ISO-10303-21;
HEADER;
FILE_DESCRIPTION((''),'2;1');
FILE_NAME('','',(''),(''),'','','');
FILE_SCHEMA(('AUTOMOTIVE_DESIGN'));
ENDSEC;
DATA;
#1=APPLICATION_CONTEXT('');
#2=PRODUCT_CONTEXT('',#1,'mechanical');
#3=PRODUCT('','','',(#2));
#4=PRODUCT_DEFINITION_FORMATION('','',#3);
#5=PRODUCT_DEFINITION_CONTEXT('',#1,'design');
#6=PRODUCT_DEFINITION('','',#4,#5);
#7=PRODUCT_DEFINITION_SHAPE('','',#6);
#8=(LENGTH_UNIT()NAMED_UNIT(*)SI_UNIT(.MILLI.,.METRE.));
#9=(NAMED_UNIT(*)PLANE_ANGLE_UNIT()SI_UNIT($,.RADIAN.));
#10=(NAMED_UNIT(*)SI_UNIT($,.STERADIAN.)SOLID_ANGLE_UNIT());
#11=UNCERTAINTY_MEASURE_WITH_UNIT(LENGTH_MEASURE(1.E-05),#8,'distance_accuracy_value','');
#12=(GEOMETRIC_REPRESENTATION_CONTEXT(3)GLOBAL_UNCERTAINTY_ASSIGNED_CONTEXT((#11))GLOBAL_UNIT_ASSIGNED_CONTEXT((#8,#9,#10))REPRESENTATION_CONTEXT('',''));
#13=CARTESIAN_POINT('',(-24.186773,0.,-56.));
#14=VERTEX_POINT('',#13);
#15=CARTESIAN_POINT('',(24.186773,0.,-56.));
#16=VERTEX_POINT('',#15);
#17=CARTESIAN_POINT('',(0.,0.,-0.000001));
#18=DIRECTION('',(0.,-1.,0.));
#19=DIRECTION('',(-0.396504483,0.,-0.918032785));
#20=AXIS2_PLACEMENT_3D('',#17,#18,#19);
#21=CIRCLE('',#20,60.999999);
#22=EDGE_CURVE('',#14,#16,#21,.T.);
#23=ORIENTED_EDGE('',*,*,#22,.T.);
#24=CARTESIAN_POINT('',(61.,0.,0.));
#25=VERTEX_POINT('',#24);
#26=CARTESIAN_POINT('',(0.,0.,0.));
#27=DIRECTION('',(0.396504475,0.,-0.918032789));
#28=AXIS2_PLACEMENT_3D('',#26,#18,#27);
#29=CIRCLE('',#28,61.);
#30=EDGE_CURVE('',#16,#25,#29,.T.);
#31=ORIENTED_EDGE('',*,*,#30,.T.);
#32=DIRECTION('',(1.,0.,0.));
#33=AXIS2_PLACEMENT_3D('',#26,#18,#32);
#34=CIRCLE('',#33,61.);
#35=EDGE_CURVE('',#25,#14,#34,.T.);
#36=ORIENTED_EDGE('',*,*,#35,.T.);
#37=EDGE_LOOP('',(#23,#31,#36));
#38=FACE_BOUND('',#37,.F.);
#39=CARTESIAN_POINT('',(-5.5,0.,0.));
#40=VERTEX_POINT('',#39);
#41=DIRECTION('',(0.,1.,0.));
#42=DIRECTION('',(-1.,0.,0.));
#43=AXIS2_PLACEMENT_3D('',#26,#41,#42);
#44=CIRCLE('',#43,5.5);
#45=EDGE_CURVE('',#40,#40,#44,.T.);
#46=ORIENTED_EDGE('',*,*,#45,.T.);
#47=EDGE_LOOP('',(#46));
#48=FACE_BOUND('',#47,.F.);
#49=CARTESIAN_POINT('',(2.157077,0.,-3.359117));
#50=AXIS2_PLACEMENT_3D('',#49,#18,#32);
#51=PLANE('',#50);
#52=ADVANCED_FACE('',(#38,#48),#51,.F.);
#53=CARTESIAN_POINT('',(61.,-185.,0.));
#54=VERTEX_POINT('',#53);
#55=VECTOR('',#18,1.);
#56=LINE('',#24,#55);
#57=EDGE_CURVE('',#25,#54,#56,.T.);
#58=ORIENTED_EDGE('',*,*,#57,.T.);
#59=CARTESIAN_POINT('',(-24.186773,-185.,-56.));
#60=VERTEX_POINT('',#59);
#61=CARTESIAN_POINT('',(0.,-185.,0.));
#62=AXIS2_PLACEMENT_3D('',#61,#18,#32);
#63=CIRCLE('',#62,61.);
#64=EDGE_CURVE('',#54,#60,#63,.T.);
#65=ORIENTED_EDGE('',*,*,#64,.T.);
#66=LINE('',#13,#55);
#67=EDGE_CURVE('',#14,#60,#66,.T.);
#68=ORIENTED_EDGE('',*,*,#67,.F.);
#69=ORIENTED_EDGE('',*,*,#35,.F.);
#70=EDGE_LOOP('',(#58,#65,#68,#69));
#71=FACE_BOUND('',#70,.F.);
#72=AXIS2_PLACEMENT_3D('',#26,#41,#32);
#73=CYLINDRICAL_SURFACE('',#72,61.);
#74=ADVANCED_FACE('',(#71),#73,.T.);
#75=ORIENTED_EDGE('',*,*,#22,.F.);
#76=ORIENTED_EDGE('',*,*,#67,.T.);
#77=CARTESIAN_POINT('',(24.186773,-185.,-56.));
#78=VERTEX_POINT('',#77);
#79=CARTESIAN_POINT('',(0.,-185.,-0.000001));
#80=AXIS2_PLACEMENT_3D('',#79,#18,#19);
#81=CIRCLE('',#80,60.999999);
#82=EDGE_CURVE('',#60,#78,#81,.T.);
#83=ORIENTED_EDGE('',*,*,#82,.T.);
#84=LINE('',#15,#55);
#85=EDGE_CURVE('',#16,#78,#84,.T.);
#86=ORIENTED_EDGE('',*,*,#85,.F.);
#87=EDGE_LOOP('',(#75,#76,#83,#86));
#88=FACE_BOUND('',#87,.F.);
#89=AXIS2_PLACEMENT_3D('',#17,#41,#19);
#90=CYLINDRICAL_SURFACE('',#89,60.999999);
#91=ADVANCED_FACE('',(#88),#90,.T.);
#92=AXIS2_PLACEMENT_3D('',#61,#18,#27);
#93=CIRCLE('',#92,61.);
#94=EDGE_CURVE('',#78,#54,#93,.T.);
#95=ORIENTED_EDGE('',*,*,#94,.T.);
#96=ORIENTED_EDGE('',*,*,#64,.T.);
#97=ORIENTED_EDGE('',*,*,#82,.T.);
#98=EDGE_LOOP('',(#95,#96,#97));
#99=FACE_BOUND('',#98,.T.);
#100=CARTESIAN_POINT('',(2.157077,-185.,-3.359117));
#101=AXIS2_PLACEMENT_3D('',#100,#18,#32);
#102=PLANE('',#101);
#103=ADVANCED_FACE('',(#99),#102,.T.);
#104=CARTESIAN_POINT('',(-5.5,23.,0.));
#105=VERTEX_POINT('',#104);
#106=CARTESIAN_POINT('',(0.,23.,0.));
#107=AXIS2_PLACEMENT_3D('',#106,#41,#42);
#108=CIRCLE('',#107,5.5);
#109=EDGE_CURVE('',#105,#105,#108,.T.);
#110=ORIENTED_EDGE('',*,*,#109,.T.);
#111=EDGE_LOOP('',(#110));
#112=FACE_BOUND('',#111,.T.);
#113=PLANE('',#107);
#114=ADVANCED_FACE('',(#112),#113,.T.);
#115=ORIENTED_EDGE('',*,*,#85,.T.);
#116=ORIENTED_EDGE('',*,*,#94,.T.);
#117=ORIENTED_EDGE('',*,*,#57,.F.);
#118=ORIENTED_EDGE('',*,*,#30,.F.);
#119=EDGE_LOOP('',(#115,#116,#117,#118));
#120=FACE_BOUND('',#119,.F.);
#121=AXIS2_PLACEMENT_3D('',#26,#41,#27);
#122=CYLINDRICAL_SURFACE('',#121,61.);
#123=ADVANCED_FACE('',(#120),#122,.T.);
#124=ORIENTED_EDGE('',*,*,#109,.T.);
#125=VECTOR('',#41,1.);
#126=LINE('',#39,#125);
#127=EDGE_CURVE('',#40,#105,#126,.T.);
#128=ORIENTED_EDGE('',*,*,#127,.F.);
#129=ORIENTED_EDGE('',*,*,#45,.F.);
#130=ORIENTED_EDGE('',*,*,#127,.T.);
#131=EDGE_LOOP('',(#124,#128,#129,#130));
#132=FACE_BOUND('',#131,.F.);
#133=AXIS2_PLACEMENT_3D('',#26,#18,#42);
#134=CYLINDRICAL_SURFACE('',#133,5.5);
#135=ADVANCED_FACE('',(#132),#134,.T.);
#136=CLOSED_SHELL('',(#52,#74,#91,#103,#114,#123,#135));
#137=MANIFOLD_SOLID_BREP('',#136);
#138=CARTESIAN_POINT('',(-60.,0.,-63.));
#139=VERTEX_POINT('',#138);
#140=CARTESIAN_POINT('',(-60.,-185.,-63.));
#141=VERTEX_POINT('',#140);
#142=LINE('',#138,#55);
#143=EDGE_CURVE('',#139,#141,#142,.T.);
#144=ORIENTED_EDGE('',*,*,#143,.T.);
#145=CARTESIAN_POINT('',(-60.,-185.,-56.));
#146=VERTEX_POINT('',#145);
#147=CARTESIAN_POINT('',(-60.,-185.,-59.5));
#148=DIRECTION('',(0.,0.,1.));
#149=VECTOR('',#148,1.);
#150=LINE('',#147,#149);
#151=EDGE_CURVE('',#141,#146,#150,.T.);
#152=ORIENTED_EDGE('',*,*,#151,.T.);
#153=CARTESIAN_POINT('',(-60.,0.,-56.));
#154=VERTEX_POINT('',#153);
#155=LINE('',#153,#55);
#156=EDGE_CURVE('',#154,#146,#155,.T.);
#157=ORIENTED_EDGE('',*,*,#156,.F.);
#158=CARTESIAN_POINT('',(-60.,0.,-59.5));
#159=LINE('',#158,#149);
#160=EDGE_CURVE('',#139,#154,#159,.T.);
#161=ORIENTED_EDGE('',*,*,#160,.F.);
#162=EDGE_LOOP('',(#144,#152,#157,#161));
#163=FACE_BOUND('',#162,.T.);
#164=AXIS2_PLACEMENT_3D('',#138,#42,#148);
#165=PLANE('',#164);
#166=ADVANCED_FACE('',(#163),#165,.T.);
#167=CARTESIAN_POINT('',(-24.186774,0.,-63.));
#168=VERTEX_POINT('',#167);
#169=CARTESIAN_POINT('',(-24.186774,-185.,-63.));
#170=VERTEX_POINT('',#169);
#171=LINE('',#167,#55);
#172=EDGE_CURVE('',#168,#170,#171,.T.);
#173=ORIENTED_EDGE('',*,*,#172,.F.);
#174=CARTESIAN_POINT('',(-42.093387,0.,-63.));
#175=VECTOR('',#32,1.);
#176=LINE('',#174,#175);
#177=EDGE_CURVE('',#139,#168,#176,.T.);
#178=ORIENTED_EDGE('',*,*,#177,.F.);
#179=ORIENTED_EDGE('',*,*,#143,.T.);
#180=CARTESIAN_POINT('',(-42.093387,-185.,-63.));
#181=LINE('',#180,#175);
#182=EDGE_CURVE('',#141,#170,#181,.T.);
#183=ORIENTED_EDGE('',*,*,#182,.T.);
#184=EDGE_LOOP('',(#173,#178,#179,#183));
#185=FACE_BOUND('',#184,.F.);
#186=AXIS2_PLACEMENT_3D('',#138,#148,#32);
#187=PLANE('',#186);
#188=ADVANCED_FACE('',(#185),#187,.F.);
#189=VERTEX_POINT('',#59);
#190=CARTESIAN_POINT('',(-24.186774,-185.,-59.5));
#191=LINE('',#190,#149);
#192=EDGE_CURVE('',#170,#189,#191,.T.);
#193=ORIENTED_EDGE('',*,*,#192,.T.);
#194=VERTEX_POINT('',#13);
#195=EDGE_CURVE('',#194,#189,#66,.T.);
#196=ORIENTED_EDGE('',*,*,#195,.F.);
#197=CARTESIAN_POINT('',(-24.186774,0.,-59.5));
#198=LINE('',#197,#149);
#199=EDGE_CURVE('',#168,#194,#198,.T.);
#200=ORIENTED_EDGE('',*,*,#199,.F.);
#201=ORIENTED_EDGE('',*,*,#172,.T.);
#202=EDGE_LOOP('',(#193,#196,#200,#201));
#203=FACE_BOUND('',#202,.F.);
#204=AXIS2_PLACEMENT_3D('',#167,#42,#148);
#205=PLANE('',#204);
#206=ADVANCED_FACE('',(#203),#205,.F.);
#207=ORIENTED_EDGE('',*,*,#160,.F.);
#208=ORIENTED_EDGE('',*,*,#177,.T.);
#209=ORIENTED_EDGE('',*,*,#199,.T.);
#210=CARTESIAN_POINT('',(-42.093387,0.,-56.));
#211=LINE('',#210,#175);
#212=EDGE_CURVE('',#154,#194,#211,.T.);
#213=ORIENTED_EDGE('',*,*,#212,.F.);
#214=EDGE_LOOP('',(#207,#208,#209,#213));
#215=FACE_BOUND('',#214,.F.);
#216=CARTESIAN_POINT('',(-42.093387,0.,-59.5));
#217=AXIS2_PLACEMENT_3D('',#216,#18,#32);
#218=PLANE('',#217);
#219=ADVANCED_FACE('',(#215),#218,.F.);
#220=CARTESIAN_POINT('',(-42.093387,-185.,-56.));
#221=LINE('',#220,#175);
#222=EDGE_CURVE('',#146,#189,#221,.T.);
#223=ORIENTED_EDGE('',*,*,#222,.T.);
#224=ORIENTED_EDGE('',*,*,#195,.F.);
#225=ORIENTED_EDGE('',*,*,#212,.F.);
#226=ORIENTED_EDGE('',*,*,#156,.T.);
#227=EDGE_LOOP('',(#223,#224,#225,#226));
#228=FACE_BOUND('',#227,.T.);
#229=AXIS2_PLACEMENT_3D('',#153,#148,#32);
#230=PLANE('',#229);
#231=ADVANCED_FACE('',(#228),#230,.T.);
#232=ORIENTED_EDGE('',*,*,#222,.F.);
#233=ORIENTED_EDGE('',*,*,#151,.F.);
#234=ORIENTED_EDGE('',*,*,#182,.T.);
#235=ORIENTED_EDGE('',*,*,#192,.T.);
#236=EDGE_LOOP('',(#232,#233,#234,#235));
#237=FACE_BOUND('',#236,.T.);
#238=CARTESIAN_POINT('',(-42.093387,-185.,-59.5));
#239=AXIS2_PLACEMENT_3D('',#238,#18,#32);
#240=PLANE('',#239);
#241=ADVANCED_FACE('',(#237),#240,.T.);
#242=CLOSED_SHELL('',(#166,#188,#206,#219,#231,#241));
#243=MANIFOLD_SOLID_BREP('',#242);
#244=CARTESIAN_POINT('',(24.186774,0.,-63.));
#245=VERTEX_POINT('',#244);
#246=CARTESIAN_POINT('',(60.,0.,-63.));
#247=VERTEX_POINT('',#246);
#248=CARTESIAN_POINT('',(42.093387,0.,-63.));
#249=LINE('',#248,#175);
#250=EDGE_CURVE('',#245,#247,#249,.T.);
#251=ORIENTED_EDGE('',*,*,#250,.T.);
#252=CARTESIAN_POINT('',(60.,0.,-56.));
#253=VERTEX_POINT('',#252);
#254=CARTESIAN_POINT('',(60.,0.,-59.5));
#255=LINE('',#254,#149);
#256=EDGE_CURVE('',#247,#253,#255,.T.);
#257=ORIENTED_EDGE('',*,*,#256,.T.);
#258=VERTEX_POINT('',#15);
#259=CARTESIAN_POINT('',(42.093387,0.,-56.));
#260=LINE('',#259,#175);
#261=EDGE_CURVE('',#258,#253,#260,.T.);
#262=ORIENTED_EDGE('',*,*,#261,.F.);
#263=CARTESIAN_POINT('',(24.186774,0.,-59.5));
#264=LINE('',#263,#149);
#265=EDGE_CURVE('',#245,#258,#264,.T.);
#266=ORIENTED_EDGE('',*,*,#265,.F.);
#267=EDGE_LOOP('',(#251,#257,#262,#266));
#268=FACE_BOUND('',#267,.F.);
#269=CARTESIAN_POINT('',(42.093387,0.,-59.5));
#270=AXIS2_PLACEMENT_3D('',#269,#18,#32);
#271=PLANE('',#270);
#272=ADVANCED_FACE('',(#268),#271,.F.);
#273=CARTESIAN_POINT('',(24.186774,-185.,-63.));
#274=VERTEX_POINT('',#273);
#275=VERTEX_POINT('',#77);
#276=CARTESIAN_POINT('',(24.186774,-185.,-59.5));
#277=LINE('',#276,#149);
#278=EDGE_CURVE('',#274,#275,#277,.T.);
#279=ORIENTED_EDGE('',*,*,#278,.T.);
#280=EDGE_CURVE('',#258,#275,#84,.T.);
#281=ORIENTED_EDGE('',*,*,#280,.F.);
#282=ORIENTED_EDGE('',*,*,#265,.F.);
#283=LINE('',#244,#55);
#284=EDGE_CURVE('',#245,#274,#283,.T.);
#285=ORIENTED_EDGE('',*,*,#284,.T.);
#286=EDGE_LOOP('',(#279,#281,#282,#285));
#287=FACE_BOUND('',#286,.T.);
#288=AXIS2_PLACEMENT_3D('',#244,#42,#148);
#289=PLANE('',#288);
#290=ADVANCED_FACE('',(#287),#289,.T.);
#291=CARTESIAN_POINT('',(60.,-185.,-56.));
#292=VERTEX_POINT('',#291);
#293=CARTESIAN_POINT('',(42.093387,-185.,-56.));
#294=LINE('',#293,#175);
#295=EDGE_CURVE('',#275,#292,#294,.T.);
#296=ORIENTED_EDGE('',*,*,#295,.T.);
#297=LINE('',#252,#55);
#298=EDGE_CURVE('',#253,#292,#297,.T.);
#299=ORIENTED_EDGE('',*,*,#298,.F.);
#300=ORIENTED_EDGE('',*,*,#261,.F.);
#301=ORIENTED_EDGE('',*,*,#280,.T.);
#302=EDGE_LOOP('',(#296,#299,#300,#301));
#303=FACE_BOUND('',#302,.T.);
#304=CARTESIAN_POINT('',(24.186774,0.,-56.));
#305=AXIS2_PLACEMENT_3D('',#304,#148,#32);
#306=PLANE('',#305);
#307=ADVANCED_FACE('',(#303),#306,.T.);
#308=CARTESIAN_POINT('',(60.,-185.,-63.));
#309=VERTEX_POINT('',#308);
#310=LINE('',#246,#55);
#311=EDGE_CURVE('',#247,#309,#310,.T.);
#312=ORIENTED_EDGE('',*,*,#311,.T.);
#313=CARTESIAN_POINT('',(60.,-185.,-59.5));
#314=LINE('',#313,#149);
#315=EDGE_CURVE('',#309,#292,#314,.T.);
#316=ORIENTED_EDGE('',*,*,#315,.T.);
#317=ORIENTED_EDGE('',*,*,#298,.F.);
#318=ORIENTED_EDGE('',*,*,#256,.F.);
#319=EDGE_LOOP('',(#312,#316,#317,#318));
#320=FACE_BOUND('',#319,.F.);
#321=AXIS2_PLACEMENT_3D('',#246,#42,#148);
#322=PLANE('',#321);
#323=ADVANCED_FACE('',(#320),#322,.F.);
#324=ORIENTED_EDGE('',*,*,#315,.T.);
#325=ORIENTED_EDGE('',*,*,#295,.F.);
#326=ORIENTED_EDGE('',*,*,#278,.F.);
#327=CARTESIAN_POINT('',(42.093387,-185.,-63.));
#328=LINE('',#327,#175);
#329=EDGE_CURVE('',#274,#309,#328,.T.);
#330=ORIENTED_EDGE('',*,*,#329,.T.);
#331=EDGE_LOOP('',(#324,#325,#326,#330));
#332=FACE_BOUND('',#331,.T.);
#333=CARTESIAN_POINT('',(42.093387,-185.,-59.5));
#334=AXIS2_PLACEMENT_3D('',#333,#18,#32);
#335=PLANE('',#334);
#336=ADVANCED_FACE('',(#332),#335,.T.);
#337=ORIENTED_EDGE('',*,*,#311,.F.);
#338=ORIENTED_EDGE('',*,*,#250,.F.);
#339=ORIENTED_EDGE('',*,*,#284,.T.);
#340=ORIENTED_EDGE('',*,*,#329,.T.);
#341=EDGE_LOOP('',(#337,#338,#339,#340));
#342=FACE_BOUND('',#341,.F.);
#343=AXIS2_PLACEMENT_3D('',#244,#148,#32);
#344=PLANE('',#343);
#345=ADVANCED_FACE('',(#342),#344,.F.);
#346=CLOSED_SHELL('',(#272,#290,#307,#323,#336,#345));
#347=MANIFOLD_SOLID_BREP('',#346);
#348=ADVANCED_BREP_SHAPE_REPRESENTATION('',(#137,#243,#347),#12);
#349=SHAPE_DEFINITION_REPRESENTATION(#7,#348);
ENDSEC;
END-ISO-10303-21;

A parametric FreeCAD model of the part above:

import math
import FreeCAD as App
import Part
import Sketcher
from FreeCAD import Vector
Q = App.Units.Quantity


def add_polygon(sketch, points):
    """Adds a closed chain of lines whose ends are joined by coincident constraints."""
    first, n = sketch.GeometryCount, len(points)
    for a, b in zip(points, points[1:] + points[:1]):
        sketch.addGeometry(Part.LineSegment(App.Vector(*a, 0), App.Vector(*b, 0)), False)
    for i in range(n):
        sketch.addConstraint(Sketcher.Constraint("Coincident", first + i, 2, first + (i + 1) % n, 1))

doc = App.newDocument("Part")
body = doc.addObject("PartDesign::Body", "Body")
body.AllowCompound = True

sketch1 = doc.addObject("Sketcher::SketchObject", "Sketch")
body.addObject(sketch1)
sketch1.AttachmentSupport = (doc.XZ_Plane, [""])
sketch1.MapMode = "FlatFace"
sketch1.addGeometry(Part.ArcOfCircle(Part.Circle(Vector(0, 0, 0), Vector(0, 0, 1), 61), math.radians(-67), math.radians(0)), False)
sketch1.addGeometry(Part.ArcOfCircle(Part.Circle(Vector(0, 0, 0), Vector(0, 0, 1), 61), math.radians(0), math.radians(247)), False)
sketch1.addGeometry(Part.ArcOfCircle(Part.Circle(Vector(0, 0, 0), Vector(0, 0, 1), 61), math.radians(-113), math.radians(-67)), False)
add_polygon(sketch1, [(24, -56), (24, -63), (60, -63), (60, -56)])
add_polygon(sketch1, [(-60, -56), (-60, -63), (-24, -63), (-24, -56)])
sketch1.addConstraint(Sketcher.Constraint("Tangent", 0, 2, 1, 1))
sketch1.addConstraint(Sketcher.Constraint("Tangent", 1, 2, 2, 1))
sketch1.addConstraint(Sketcher.Constraint("Tangent", 2, 2, 0, 1))
sketch1.addConstraint(Sketcher.Constraint("Vertical", 3))
sketch1.addConstraint(Sketcher.Constraint("Horizontal", 4))
sketch1.addConstraint(Sketcher.Constraint("Vertical", 5))
sketch1.addConstraint(Sketcher.Constraint("Horizontal", 6))
sketch1.addConstraint(Sketcher.Constraint("Vertical", 7))
sketch1.addConstraint(Sketcher.Constraint("Horizontal", 8))
sketch1.addConstraint(Sketcher.Constraint("Vertical", 9))
sketch1.addConstraint(Sketcher.Constraint("Horizontal", 10))
sketch1.addConstraint(Sketcher.Constraint("Coincident", 0, 3, -1, 1))
sketch1.addConstraint(Sketcher.Constraint("Coincident", 6, 2, 2, 2))
sketch1.addConstraint(Sketcher.Constraint("Coincident", 9, 2, 1, 2))
sketch1.addConstraint(Sketcher.Constraint("Symmetric", 4, 2, 7, 2, -2))
sketch1.addConstraint(Sketcher.Constraint("PointOnObject", 0, 2, -1))
sketch1.addConstraint(Sketcher.Constraint("Horizontal", 1, 2, 2, 2))
sketch1.addConstraint(Sketcher.Constraint("Radius", 0, Q("61 mm")))
sketch1.addConstraint(Sketcher.Constraint("DistanceY", 3, 2, 3, 1, Q("7 mm")))
sketch1.addConstraint(Sketcher.Constraint("DistanceY", 1, 2, -1, 1, Q("56 mm")))
sketch1.addConstraint(Sketcher.Constraint("DistanceX", -1, 1, 4, 2, Q("60 mm")))
pad1 = doc.addObject("PartDesign::Pad", "Pad")
body.addObject(pad1)
pad1.Profile = sketch1
pad1.Length = 185

sketch2 = doc.addObject("Sketcher::SketchObject", "Sketch001")
body.addObject(sketch2)
sketch2.AttachmentSupport = (doc.XZ_Plane, [""])
sketch2.MapMode = "FlatFace"
sketch2.addGeometry(Part.Circle(Vector(0, 0, 0), Vector(0, 0, 1), 6), False)
sketch2.addConstraint(Sketcher.Constraint("Coincident", 0, 3, -1, 1))
sketch2.addConstraint(Sketcher.Constraint("Diameter", 0, Q("11 mm")))
pad2 = doc.addObject("PartDesign::Pad", "Pad001")
body.addObject(pad2)
pad2.Profile = sketch2
pad2.Length = 23
pad2.Reversed = True

doc.recompute()
